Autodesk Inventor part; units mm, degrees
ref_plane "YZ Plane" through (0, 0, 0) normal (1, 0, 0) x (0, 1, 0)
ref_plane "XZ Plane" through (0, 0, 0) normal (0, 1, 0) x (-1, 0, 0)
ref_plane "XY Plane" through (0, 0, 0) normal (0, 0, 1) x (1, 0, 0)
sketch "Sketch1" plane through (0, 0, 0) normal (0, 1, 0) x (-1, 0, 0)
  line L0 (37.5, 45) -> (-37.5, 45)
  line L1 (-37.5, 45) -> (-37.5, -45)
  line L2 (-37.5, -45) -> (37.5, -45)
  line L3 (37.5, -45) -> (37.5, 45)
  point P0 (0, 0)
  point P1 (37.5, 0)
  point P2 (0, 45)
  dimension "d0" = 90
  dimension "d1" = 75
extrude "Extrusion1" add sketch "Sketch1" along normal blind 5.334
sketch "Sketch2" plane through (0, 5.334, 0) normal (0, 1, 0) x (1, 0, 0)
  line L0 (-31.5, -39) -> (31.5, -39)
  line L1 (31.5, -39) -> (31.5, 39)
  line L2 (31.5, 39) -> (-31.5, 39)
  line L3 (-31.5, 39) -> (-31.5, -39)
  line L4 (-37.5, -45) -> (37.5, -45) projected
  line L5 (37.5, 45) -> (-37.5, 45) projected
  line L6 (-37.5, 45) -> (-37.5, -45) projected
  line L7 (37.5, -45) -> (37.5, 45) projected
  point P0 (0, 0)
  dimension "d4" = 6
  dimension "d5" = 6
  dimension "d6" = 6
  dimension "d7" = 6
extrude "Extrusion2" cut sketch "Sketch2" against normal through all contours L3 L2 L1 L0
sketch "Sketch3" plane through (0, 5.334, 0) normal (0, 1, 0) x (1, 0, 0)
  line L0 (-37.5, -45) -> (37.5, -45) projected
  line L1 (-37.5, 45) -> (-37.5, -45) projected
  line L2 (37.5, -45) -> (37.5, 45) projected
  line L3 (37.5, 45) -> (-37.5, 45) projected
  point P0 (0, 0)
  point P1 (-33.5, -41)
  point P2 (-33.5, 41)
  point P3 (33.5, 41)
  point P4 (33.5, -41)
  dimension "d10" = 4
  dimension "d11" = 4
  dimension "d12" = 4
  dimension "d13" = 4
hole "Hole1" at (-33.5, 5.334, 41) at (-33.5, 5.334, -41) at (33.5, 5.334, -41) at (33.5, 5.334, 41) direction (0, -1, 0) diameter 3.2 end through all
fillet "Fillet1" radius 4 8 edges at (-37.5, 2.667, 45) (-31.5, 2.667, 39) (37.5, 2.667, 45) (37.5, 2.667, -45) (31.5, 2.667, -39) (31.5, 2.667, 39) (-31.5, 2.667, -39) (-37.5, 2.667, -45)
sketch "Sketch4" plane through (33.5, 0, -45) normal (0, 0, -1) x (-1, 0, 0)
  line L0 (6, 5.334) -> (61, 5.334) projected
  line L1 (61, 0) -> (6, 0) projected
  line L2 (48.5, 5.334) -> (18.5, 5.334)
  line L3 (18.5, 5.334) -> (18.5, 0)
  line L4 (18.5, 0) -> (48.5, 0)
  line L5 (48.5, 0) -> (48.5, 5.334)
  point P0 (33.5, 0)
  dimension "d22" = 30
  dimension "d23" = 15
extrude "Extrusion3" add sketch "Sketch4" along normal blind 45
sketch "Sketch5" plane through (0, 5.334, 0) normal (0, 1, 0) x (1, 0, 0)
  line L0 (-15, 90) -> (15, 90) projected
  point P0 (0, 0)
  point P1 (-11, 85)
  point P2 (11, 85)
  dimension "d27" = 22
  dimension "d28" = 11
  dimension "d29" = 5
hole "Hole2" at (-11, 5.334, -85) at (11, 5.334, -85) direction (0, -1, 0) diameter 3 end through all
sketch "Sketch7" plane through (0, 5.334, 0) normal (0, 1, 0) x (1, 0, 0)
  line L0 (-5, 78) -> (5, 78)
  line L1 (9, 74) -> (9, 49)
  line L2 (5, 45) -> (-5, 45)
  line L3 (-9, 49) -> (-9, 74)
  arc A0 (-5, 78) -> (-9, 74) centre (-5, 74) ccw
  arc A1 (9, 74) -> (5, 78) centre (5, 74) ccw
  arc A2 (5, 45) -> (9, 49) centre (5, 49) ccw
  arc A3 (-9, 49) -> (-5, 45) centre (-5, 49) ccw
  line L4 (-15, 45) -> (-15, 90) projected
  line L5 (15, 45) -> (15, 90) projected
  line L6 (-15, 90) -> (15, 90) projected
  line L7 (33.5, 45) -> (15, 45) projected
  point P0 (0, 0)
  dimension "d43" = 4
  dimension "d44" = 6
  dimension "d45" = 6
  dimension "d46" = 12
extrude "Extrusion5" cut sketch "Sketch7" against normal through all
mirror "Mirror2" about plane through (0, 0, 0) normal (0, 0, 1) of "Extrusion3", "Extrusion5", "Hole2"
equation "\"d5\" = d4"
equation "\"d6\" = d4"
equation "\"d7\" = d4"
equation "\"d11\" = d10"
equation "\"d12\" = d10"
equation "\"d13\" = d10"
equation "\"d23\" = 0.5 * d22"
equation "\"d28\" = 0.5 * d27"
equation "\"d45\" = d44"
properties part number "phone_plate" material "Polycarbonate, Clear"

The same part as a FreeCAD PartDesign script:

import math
import FreeCAD as App
import Part
import Sketcher

V = App.Vector


def edges_at(feature, points):
    """Names of the edges that pass closest to the given points."""
    edges = feature.Shape.Edges
    near = lambda p: min(range(len(edges)), key=lambda i: edges[i].distToShape(Part.Vertex(*p))[0])
    return sorted({f"Edge{near(p) + 1}" for p in points})


def add_polygon(sketch, points):
    """Adds a closed chain of lines whose ends are joined by coincident constraints."""
    first, n = sketch.GeometryCount, len(points)
    for a, b in zip(points, points[1:] + points[:1]):
        sketch.addGeometry(Part.LineSegment(App.Vector(*a, 0), App.Vector(*b, 0)), False)
    for i in range(n):
        sketch.addConstraint(Sketcher.Constraint("Coincident", first + i, 2, first + (i + 1) % n, 1))

doc = App.newDocument("Part")
body = doc.addObject("PartDesign::Body", "Body")

sketch1 = body.newObject("Sketcher::SketchObject", "Sketch")
sketch1.AttachmentSupport = (doc.getObject("XZ_Plane"), [""])
sketch1.MapMode = "FlatFace"
add_polygon(sketch1, [(-38, -45), (-38, 45), (38, 45), (38, -45)])
sketch1.addConstraint([
    Sketcher.Constraint("Vertical", 0),
    Sketcher.Constraint("Horizontal", 1),
    Sketcher.Constraint("Vertical", 2),
    Sketcher.Constraint("Horizontal", 3),
    Sketcher.Constraint("Symmetric", 0, 2, 2, 2, -1, 1),
    Sketcher.Constraint("DistanceX", 1, 1, 1, 2, 75.0),
    Sketcher.Constraint("DistanceY", 0, 1, 0, 2, 90.0),
])
pad1 = body.newObject("PartDesign::Pad", "Pad")
pad1.Profile = sketch1
pad1.Length = 5.334
pad1.Reversed = True

sketch2 = body.newObject("Sketcher::SketchObject", "Sketch001")
sketch2.AttachmentSupport = (doc.getObject("XZ_Plane"), [""])
sketch2.MapMode = "FlatFace"
sketch2.AttachmentOffset = App.Placement(V(0, 0, -5.334), App.Rotation())
add_polygon(sketch2, [(-32, -39), (-32, 39), (32, 39), (32, -39)])
sketch2.addConstraint([
    Sketcher.Constraint("Vertical", 0),
    Sketcher.Constraint("Horizontal", 1),
    Sketcher.Constraint("Vertical", 2),
    Sketcher.Constraint("Horizontal", 3),
    Sketcher.Constraint("Symmetric", 0, 2, 2, 2, -1, 1),
    Sketcher.Constraint("DistanceX", 1, 1, 1, 2, 63.0),
    Sketcher.Constraint("DistanceY", 0, 1, 0, 2, 78.0),
])
pocket1 = body.newObject("PartDesign::Pocket", "Pocket")
pocket1.Profile = sketch2
pocket1.Type = "ThroughAll"
pocket1.Reversed = True

sketch3 = body.newObject("Sketcher::SketchObject", "Sketch002")
sketch3.AttachmentSupport = (doc.getObject("XZ_Plane"), [""])
sketch3.MapMode = "FlatFace"
sketch3.AttachmentOffset = App.Placement(V(0, 0, -5.334), App.Rotation())
sketch3.addGeometry([
    Part.Circle(V(-33.5, 41, 0), V(0, 0, 1), 1.6),
    Part.Circle(V(-33.5, -41, 0), V(0, 0, 1), 1.6),
    Part.Circle(V(33.5, -41, 0), V(0, 0, 1), 1.6),
    Part.Circle(V(33.5, 41, 0), V(0, 0, 1), 1.6),
], False)
sketch3.addConstraint([
    Sketcher.Constraint("Equal", 0, 1),
    Sketcher.Constraint("Equal", 1, 2),
    Sketcher.Constraint("Equal", 2, 3),
    Sketcher.Constraint("Symmetric", 0, 3, 2, 3, -1, 1),
    Sketcher.Constraint("Symmetric", 1, 3, 3, 3, -1, 1),
    Sketcher.Constraint("Symmetric", 1, 3, 2, 3, -2),
    Sketcher.Constraint("Diameter", 0, 3.2),
    Sketcher.Constraint("DistanceY", -1, 1, 0, 3, 41.0),
    Sketcher.Constraint("DistanceX", 1, 3, 2, 3, 67.0),
])
doc.recompute()
hole = body.newObject("PartDesign::Hole", "Hole")
hole.Profile = sketch3
hole.ThreadType = "None"
hole.Diameter = 3.2
hole.DepthType = "ThroughAll"
hole.Reversed = True
doc.recompute()

fillet = body.newObject("PartDesign::Fillet", "Fillet")
fillet.Base = (hole, edges_at(hole, [
    (-37.5, 2.667, 45),
    (-31.5, 2.667, 39),
    (37.5, 2.667, 45),
    (37.5, 2.667, -45),
    (31.5, 2.667, -39),
    (31.5, 2.667, 39),
    (-31.5, 2.667, -39),
    (-37.5, 2.667, -45),
]))
fillet.Radius = 4

sketch4 = body.newObject("Sketcher::SketchObject", "Sketch003")
sketch4.AttachmentSupport = (doc.getObject("XY_Plane"), [""])
sketch4.MapMode = "FlatFace"
sketch4.AttachmentOffset = App.Placement(V(0, 0, -45), App.Rotation())
add_polygon(sketch4, [(-15, 5), (15, 5), (15, 0), (-15, 0)])
sketch4.addConstraint([
    Sketcher.Constraint("Horizontal", 0),
    Sketcher.Constraint("Vertical", 1),
    Sketcher.Constraint("Horizontal", 2),
    Sketcher.Constraint("Vertical", 3),
    Sketcher.Constraint("Symmetric", 1, 2, 2, 2, -1, 1),
    Sketcher.Constraint("DistanceX", 0, 1, 0, 2, 30.0),
    Sketcher.Constraint("DistanceY", 1, 2, 1, 1, 5.334),
])
pad2 = body.newObject("PartDesign::Pad", "Pad001")
pad2.Profile = sketch4
pad2.Length = 45
pad2.Reversed = True

sketch5 = body.newObject("Sketcher::SketchObject", "Sketch004")
sketch5.AttachmentSupport = (doc.getObject("XZ_Plane"), [""])
sketch5.MapMode = "FlatFace"
sketch5.AttachmentOffset = App.Placement(V(0, 0, -5.334), App.Rotation())
sketch5.addGeometry([
    Part.Circle(V(-11, -85, 0), V(0, 0, 1), 1.5),
    Part.Circle(V(11, -85, 0), V(0, 0, 1), 1.5),
], False)
sketch5.addConstraint([
    Sketcher.Constraint("Equal", 0, 1),
    Sketcher.Constraint("Symmetric", 0, 3, 1, 3, -2),
    Sketcher.Constraint("Diameter", 0, 3.0),
    Sketcher.Constraint("DistanceX", 0, 3, -1, 1, 11.0),
    Sketcher.Constraint("DistanceY", 0, 3, -1, 1, 85.0),
])
doc.recompute()
hole2 = body.newObject("PartDesign::Hole", "Hole001")
hole2.Profile = sketch5
hole2.ThreadType = "None"
hole2.Diameter = 3
hole2.DepthType = "ThroughAll"
hole2.Reversed = True

sketch6 = body.newObject("Sketcher::SketchObject", "Sketch005")
sketch6.AttachmentSupport = (doc.getObject("XZ_Plane"), [""])
sketch6.MapMode = "FlatFace"
sketch6.AttachmentOffset = App.Placement(V(0, 0, -5.334), App.Rotation())
sketch6.addGeometry([
    Part.LineSegment(V(5, -78, 0), V(-5, -78, 0)),
    Part.ArcOfCircle(Part.Circle(V(-5, -74, 0), V(0, 0, 1), 4), math.radians(180), math.radians(270)),
    Part.LineSegment(V(-9, -74, 0), V(-9, -49, 0)),
    Part.ArcOfCircle(Part.Circle(V(-5, -49, 0), V(0, 0, 1), 4), math.radians(90), math.radians(180)),
    Part.LineSegment(V(-5, -45, 0), V(5, -45, 0)),
    Part.ArcOfCircle(Part.Circle(V(5, -49, 0), V(0, 0, 1), 4), math.radians(0), math.radians(90)),
    Part.LineSegment(V(9, -49, 0), V(9, -74, 0)),
    Part.ArcOfCircle(Part.Circle(V(5, -74, 0), V(0, 0, 1), 4), math.radians(-90), math.radians(0)),
], False)
sketch6.addConstraint([
    Sketcher.Constraint("Tangent", 0, 2, 1, 2),
    Sketcher.Constraint("Tangent", 1, 1, 2, 1),
    Sketcher.Constraint("Tangent", 2, 2, 3, 2),
    Sketcher.Constraint("Tangent", 3, 1, 4, 1),
    Sketcher.Constraint("Tangent", 4, 2, 5, 2),
    Sketcher.Constraint("Tangent", 5, 1, 6, 1),
    Sketcher.Constraint("Tangent", 6, 2, 7, 2),
    Sketcher.Constraint("Tangent", 7, 1, 0, 1),
    Sketcher.Constraint("Horizontal", 0),
    Sketcher.Constraint("Vertical", 2),
    Sketcher.Constraint("Horizontal", 4),
    Sketcher.Constraint("Vertical", 6),
    Sketcher.Constraint("Equal", 1, 3),
    Sketcher.Constraint("Equal", 3, 5),
    Sketcher.Constraint("Equal", 5, 7),
    Sketcher.Constraint("Radius", 1, 4.0),
    Sketcher.Constraint("DistanceX", 0, 2, 0, 1, 10.0),
    Sketcher.Constraint("DistanceY", 2, 1, 2, 2, 25.0),
    Sketcher.Constraint("DistanceX", 1, 3, -1, 1, 5.0),
    Sketcher.Constraint("DistanceY", 1, 3, -1, 1, 74.0),
])
pocket2 = body.newObject("PartDesign::Pocket", "Pocket001")
pocket2.Profile = sketch6
pocket2.Type = "ThroughAll"
pocket2.Reversed = True
doc.recompute()

mirrored = body.newObject("PartDesign::Mirrored", "Mirrored")
mirrored.Originals = [pad2, pocket2, hole2]
mirrored.MirrorPlane = (doc.getObject("XY_Plane"), [""])
body.Tip = mirrored

doc.recompute()
